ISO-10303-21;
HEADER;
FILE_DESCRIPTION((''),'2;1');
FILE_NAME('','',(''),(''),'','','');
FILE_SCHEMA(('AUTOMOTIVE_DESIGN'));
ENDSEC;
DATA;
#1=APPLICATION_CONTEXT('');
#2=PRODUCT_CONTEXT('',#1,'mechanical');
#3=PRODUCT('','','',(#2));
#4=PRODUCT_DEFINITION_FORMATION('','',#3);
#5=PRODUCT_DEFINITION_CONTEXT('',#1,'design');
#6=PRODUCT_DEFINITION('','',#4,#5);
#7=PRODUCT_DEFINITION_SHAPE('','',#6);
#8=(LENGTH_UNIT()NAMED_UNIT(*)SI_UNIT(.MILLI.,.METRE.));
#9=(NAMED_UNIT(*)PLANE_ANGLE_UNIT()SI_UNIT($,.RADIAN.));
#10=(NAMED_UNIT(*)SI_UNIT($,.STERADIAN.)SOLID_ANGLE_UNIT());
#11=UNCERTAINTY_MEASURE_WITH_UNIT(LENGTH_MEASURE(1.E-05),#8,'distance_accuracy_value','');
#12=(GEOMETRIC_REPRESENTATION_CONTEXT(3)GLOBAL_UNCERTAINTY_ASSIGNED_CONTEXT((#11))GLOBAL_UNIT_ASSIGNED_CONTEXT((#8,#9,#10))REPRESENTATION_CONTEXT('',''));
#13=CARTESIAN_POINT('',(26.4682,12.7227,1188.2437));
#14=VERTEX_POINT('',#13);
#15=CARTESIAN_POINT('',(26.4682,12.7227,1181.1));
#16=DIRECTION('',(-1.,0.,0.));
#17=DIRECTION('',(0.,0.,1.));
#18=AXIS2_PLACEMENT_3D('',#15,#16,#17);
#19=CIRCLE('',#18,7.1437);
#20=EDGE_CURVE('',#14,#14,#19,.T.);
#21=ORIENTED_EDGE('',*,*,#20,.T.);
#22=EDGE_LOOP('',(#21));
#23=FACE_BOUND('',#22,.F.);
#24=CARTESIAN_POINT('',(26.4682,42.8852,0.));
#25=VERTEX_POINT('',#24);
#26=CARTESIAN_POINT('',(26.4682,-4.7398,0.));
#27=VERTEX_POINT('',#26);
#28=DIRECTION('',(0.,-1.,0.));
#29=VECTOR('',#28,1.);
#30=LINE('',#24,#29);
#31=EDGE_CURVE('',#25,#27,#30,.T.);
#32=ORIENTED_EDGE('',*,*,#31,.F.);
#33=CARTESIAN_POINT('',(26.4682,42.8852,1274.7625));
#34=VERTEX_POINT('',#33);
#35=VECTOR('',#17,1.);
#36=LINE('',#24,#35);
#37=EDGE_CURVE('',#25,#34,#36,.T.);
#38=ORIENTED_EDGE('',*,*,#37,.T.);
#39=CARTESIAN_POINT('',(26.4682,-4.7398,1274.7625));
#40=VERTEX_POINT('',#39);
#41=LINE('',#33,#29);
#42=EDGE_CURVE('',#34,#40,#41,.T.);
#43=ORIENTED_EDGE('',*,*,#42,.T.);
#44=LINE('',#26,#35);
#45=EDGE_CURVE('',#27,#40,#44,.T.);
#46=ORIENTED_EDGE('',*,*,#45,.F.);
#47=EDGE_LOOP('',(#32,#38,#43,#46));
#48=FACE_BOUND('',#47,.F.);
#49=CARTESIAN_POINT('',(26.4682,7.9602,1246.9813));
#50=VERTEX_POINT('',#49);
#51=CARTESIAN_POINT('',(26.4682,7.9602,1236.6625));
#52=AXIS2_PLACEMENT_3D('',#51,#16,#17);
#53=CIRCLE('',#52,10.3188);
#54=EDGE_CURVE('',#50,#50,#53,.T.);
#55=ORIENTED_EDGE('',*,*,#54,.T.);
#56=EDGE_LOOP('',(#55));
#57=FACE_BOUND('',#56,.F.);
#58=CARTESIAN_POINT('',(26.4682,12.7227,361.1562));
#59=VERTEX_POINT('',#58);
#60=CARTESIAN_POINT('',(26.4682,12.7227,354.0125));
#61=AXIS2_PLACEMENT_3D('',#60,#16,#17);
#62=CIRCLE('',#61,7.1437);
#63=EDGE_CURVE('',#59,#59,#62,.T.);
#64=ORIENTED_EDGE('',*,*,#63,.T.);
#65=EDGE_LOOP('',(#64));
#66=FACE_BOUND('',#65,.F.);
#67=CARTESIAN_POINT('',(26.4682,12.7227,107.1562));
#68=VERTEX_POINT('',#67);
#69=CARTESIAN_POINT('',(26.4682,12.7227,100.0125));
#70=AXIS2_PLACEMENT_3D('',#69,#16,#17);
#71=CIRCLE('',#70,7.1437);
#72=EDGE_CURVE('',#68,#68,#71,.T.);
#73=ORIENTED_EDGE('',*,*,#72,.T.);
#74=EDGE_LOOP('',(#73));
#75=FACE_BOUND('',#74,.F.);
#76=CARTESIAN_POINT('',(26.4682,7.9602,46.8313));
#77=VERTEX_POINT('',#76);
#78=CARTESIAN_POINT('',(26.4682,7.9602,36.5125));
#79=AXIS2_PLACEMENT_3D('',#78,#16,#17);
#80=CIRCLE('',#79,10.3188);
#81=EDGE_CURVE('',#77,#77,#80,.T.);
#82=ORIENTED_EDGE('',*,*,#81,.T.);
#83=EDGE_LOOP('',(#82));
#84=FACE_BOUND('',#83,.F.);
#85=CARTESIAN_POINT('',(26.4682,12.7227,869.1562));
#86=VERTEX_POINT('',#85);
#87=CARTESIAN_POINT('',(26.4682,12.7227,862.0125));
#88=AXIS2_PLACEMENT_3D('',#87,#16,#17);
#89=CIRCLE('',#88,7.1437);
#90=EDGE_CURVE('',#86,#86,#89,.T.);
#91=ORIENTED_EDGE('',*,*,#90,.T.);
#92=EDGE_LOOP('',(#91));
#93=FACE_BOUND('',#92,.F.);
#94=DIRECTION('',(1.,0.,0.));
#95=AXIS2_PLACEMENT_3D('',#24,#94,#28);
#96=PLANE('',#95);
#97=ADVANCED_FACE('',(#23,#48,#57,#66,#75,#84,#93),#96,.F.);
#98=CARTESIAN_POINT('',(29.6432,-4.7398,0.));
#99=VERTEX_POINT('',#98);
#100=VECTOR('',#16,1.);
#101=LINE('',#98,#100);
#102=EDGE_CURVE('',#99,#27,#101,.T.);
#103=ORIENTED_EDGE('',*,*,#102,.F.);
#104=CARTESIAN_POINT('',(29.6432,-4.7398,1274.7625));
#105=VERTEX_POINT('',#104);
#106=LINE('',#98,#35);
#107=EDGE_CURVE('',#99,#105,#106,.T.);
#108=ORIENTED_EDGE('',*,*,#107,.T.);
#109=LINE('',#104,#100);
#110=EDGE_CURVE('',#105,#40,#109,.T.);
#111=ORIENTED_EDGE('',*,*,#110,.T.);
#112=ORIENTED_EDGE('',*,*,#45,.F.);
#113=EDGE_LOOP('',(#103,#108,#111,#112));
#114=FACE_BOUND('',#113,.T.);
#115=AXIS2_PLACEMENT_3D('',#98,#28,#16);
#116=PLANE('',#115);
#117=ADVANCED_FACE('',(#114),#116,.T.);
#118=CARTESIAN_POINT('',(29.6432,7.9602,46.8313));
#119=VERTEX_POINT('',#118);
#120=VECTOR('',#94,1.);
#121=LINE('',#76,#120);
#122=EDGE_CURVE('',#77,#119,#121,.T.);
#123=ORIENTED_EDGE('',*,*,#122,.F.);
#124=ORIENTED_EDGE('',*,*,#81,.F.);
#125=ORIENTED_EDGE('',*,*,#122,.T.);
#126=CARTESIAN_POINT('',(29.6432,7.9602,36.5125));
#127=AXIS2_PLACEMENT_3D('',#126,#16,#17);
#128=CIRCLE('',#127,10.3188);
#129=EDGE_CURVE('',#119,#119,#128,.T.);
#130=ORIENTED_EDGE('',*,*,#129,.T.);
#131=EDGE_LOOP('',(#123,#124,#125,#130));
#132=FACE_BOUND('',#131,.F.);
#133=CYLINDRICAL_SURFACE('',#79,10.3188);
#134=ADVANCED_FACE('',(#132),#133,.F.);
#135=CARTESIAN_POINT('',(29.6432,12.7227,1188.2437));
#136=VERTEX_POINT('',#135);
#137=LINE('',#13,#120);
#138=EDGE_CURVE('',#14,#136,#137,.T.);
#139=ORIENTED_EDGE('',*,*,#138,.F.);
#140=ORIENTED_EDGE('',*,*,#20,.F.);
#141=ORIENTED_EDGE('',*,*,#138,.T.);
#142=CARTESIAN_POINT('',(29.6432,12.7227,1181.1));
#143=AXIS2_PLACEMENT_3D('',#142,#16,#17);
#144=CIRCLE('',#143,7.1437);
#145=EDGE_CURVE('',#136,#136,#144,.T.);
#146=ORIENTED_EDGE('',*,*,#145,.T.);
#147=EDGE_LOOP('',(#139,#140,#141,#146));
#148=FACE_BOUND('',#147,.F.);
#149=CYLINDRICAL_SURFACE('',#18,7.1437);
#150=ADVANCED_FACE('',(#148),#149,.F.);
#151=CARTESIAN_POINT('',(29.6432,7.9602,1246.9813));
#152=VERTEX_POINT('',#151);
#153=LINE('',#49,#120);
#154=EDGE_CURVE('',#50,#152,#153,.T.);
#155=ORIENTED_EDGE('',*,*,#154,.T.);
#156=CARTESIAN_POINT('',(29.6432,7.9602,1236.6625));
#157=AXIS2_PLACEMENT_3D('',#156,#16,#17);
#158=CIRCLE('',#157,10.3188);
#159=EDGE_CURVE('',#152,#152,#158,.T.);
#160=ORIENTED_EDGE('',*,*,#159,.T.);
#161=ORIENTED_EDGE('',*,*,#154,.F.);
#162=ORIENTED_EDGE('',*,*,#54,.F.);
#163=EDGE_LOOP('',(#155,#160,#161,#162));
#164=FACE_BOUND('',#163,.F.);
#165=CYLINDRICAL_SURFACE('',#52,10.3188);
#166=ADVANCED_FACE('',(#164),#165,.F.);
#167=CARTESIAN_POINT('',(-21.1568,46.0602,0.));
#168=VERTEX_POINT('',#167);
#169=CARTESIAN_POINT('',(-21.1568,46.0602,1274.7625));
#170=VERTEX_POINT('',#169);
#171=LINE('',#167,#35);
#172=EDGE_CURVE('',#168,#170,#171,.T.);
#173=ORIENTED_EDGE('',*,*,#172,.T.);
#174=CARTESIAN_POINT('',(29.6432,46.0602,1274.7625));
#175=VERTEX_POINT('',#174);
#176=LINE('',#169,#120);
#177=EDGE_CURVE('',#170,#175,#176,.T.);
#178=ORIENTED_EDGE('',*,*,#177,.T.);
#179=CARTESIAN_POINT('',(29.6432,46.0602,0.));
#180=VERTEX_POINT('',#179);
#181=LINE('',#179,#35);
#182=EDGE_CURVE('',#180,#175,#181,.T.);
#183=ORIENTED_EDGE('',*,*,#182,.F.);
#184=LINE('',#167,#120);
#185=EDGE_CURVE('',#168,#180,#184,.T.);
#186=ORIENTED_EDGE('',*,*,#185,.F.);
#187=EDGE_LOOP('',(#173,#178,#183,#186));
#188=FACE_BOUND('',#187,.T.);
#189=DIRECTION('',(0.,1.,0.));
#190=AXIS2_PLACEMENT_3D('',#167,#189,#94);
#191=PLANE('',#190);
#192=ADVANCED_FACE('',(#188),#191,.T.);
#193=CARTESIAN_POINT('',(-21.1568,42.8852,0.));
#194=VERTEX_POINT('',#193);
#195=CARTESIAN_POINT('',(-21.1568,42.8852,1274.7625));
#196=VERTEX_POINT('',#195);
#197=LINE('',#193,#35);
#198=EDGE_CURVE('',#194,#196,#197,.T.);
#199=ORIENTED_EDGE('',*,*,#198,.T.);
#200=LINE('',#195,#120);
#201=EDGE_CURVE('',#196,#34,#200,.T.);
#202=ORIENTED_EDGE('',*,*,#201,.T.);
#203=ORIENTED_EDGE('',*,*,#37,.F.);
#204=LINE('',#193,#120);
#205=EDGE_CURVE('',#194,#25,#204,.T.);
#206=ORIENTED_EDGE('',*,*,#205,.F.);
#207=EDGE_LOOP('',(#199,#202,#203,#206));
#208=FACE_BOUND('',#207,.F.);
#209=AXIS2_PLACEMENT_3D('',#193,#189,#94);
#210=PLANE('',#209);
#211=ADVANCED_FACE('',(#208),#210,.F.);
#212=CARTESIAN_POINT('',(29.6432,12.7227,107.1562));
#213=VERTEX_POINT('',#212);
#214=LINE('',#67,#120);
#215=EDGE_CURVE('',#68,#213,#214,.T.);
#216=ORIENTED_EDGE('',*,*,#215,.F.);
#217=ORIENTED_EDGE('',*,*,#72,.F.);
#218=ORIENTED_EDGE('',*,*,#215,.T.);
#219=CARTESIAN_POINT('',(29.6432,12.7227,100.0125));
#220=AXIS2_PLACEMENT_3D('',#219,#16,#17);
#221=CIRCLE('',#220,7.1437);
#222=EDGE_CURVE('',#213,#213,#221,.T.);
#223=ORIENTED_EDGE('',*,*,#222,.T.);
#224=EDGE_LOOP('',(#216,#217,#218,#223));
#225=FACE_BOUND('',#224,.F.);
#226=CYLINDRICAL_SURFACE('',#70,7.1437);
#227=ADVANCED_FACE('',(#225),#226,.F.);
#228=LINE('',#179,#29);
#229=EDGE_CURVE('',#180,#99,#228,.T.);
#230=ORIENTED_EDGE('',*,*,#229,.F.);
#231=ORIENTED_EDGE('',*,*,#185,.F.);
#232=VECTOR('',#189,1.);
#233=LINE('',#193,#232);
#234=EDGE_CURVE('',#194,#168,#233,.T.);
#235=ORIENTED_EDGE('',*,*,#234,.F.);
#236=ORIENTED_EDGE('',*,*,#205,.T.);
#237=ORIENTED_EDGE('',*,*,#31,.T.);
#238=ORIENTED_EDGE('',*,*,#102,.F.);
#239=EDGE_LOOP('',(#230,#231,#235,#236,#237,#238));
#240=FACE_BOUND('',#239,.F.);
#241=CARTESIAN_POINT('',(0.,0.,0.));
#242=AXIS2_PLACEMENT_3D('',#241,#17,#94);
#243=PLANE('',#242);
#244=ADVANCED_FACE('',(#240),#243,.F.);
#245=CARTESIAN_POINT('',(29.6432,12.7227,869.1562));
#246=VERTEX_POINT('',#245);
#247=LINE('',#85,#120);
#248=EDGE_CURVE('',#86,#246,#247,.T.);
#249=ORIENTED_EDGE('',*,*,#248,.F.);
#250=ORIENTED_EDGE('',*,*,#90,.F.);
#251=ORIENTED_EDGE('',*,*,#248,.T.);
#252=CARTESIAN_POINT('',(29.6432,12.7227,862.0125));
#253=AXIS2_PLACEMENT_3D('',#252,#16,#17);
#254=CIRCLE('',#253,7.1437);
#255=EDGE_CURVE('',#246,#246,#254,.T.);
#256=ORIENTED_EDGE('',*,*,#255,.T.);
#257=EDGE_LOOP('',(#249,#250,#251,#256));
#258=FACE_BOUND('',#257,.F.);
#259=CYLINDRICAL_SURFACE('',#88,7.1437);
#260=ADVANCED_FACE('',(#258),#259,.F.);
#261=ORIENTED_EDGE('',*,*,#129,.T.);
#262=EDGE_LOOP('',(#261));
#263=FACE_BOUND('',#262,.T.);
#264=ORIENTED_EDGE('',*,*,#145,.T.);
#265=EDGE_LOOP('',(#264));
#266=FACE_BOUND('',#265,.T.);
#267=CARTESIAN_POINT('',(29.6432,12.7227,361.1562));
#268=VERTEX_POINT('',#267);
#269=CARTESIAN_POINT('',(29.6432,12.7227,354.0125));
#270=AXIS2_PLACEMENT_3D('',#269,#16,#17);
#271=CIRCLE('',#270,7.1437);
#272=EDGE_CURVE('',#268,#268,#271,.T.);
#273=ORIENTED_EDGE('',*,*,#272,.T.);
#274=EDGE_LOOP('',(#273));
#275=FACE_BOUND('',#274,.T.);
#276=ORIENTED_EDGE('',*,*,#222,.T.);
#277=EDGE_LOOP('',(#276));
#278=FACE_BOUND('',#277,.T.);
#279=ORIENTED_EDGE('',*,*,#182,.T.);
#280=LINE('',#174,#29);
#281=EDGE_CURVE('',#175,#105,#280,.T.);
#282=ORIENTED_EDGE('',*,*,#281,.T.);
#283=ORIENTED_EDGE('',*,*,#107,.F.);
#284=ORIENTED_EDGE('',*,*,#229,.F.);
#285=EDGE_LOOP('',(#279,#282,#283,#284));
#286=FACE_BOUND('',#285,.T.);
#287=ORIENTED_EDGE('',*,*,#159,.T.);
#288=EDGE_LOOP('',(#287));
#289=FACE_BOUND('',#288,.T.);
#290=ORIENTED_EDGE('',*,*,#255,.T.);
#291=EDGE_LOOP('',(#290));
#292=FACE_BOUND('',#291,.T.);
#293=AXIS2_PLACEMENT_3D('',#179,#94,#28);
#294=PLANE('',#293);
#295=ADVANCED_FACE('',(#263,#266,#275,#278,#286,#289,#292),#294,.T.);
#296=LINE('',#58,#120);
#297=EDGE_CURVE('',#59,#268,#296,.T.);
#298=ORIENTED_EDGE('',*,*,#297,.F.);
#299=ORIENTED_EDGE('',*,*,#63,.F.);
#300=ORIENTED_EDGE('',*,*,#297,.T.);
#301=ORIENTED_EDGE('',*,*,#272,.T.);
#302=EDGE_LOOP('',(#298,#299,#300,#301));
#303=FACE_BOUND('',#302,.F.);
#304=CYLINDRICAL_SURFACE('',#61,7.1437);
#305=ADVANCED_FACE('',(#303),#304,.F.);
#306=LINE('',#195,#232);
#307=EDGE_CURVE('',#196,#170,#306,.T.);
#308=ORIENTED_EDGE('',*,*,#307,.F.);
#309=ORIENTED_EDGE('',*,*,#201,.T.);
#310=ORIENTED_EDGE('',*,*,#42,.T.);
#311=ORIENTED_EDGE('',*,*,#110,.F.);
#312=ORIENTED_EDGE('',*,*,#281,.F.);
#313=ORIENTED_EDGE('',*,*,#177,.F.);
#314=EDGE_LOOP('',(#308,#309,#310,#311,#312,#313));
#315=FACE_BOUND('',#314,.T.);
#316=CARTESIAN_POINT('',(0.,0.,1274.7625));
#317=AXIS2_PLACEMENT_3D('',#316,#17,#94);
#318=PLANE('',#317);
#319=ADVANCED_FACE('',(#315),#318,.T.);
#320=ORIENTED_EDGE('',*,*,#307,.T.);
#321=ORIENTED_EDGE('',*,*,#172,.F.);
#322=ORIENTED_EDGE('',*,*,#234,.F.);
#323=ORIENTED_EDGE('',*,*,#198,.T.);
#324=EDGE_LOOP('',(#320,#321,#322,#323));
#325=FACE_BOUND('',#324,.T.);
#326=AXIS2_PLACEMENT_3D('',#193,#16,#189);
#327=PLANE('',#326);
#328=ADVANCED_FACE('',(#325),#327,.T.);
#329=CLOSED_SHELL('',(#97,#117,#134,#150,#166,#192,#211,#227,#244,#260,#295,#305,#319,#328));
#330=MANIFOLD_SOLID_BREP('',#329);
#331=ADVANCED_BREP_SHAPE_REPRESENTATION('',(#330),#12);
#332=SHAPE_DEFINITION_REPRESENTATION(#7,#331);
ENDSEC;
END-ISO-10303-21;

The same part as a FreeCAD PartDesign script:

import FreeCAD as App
import Part
import Sketcher
Q = App.Units.Quantity


def add_polygon(sketch, points):
    """Adds a closed chain of lines whose ends are joined by coincident constraints."""
    first, n = sketch.GeometryCount, len(points)
    for a, b in zip(points, points[1:] + points[:1]):
        sketch.addGeometry(Part.LineSegment(App.Vector(*a, 0), App.Vector(*b, 0)), False)
    for i in range(n):
        sketch.addConstraint(Sketcher.Constraint("Coincident", first + i, 2, first + (i + 1) % n, 1))

doc = App.newDocument("Part")
body = doc.addObject("PartDesign::Body", "Body")

sketch1 = body.newObject("Sketcher::SketchObject", "Sketch")
sketch1.AttachmentSupport = (doc.getObject("XY_Plane"), [""])
sketch1.MapMode = "FlatFace"
add_polygon(sketch1, [(29.6, 46.1), (-21.2, 46.1), (-21.2, 42.9), (26.5, 42.9), (26.5, -4.7), (29.6, -4.7)])
sketch1.addConstraint([
    Sketcher.Constraint("Horizontal", 0),
    Sketcher.Constraint("Vertical", 1),
    Sketcher.Constraint("Horizontal", 2),
    Sketcher.Constraint("Vertical", 3),
    Sketcher.Constraint("Horizontal", 4),
    Sketcher.Constraint("Vertical", 5),
    Sketcher.Constraint("Equal", 4, 1),
    Sketcher.Constraint("Equal", 2, 3),
    Sketcher.Constraint("DistanceX", 0, 2, 0, 1, Q("2 in")),
    Sketcher.Constraint("DistanceX", 4, 1, 4, 2, Q("0.125 in")),
    Sketcher.Constraint("DistanceY", -1, 1, 0, 2, Q("1.8134 in")),
    Sketcher.Constraint("DistanceX", 0, 2, -1, 1, Q("21.1568 mm")),
])
pad1 = body.newObject("PartDesign::Pad", "Pad")
pad1.Profile = sketch1
pad1.Length = Q("50.1875 in")

sketch2 = body.newObject("Sketcher::SketchObject", "Sketch001")
sketch2.AttachmentSupport = (doc.getObject("YZ_Plane"), [""])
sketch2.MapMode = "FlatFace"
sketch2.AttachmentOffset = App.Placement(App.Vector(0, 0, 26.4682), App.Rotation())
sketch2.addGeometry([
    Part.Circle(App.Vector(8, 37, 0), App.Vector(0, 0, 1), 10),
    Part.Circle(App.Vector(13, 100, 0), App.Vector(0, 0, 1), 7),
    Part.Circle(App.Vector(13, 354, 0), App.Vector(0, 0, 1), 7),
    Part.Circle(App.Vector(13, 862, 0), App.Vector(0, 0, 1), 7),
    Part.Circle(App.Vector(13, 1181, 0), App.Vector(0, 0, 1), 7),
    Part.Circle(App.Vector(8, 1237, 0), App.Vector(0, 0, 1), 10),
], False)
sketch2.addConstraint([
    Sketcher.Constraint("Equal", 1, 2),
    Sketcher.Constraint("Equal", 2, 3),
    Sketcher.Constraint("Equal", 3, 4),
    Sketcher.Constraint("Equal", 0, 5),
    Sketcher.Constraint("Vertical", 1, 3, 2, 3),
    Sketcher.Constraint("Vertical", 2, 3, 3, 3),
    Sketcher.Constraint("Vertical", 3, 3, 4, 3),
    Sketcher.Constraint("Vertical", 0, 3, 5, 3),
    Sketcher.Constraint("Diameter", 0, Q("0.8125 in")),
    Sketcher.Constraint("Diameter", 1, Q("0.5625 in")),
    Sketcher.Constraint("DistanceY", 1, 3, 2, 3, Q("10 in")),
    Sketcher.Constraint("DistanceY", 2, 3, 3, 3, Q("20 in")),
    Sketcher.Constraint("DistanceY", -1, 1, 4, 3, Q("46.5 in")),
    Sketcher.Constraint("DistanceY", 0, 3, 1, 3, Q("2.5 in")),
    Sketcher.Constraint("DistanceY", 3, 3, 5, 3, Q("14.75 in")),
    Sketcher.Constraint("DistanceY", -1, 1, 0, 3, Q("1.4375 in")),
    Sketcher.Constraint("DistanceX", 0, 3, 1, 3, Q("0.1875 in")),
    Sketcher.Constraint("DistanceX", -1, 1, 0, 3, Q("0.3134 in")),
])
pocket1 = body.newObject("PartDesign::Pocket", "Pocket")
pocket1.Profile = sketch2
pocket1.Length = Q("71.375 in")
pocket1.Reversed = True

doc.recompute()
